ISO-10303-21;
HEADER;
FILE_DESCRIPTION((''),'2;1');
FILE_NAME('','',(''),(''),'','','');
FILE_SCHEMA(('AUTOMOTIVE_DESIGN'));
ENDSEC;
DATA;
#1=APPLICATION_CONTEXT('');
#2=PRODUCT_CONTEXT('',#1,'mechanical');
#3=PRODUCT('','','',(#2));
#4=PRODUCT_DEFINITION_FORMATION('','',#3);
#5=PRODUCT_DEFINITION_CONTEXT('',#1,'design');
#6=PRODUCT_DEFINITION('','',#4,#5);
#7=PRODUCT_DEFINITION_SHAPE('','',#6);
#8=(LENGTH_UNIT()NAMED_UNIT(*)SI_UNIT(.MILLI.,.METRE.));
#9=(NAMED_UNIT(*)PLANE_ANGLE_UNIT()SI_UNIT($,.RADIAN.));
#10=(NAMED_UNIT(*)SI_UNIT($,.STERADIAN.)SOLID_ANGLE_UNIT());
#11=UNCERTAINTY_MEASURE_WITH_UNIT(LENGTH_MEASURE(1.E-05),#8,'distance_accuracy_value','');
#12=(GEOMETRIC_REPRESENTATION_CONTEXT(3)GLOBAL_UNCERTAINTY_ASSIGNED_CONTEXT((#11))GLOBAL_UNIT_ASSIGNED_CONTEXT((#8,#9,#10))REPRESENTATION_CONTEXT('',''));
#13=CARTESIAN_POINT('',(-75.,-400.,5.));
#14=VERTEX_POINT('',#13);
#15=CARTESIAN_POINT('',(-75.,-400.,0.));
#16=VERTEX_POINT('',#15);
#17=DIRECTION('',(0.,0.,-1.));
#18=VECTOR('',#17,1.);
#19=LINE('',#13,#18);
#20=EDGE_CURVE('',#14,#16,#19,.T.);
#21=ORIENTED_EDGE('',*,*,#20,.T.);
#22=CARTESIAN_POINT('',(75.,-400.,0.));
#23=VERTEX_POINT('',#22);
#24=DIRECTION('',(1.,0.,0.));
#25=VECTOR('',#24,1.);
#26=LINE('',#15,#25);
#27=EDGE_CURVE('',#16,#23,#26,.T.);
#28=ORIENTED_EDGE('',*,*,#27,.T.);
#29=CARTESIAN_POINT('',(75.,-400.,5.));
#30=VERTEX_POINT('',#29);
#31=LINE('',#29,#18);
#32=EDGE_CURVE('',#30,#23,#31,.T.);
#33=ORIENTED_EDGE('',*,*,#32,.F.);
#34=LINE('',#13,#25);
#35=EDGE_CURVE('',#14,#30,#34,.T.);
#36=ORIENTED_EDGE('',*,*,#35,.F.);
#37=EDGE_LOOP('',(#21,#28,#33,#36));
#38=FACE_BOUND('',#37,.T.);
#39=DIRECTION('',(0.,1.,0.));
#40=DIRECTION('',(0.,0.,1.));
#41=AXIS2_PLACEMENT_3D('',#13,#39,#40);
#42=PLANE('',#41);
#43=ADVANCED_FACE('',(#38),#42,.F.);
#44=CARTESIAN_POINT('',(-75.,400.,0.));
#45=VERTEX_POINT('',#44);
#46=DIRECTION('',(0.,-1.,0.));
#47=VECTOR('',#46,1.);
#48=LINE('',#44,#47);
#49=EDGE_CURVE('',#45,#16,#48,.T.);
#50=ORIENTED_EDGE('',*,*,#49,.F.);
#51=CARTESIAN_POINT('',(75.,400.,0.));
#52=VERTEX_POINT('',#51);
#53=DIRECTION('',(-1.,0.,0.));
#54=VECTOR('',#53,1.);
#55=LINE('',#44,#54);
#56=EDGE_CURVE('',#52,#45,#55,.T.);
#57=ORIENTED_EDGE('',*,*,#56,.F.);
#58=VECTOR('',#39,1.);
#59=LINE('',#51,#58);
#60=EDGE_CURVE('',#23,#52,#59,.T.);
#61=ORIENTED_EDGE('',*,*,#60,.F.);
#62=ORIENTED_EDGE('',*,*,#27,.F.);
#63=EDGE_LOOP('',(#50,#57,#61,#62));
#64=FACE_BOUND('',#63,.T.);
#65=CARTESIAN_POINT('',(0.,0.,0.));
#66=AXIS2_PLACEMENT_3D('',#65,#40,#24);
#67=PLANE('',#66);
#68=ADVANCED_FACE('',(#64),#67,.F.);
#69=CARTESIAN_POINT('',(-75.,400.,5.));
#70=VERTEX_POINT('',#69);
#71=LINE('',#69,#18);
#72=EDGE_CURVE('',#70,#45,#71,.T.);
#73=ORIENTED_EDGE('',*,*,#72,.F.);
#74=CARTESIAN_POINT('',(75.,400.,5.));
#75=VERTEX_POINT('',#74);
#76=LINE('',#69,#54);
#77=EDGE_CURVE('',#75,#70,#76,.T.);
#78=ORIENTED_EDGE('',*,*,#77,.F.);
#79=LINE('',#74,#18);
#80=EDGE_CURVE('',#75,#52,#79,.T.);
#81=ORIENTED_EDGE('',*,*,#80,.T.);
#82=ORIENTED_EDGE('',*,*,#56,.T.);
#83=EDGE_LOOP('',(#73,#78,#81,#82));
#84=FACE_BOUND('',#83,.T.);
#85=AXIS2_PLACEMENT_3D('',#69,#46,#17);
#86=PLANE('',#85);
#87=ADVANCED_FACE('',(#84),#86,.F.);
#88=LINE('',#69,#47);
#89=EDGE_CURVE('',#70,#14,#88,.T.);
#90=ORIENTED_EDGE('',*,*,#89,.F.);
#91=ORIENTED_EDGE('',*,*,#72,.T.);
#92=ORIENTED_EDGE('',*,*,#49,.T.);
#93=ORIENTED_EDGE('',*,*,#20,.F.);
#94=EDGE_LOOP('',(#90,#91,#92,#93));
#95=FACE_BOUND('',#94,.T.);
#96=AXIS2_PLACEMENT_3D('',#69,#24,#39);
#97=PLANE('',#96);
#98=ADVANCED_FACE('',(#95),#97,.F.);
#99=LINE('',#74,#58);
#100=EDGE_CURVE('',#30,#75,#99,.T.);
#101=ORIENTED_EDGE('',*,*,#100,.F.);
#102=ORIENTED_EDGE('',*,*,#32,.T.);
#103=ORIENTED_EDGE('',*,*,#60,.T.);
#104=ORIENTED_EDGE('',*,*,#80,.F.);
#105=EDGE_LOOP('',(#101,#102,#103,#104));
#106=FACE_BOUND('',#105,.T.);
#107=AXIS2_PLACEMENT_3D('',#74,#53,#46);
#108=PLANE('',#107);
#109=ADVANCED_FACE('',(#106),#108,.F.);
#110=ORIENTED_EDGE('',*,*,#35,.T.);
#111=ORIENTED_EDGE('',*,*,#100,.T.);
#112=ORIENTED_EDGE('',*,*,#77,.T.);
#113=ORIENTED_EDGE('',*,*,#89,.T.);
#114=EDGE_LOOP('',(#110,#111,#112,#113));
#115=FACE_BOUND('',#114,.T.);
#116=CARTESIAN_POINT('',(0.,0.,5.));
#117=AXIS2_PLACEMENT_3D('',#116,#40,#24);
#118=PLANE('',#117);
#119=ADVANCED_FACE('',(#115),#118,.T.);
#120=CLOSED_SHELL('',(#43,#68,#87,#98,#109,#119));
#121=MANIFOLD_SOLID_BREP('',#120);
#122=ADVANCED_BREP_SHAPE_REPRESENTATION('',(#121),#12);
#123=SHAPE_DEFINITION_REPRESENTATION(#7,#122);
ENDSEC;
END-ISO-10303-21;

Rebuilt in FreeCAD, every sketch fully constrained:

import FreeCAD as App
import Part
import Sketcher
from FreeCAD import Vector

doc = App.newDocument("Part")
body = doc.addObject("PartDesign::Body", "Body")

# Sketch on XY plane
sketch1 = body.newObject("Sketcher::SketchObject", "Sketch")
sketch1.AttachmentSupport = (doc.getObject("XY_Plane"), [""])
sketch1.MapMode = "FlatFace"
sketch1.addGeometry(Part.LineSegment(Vector(-75, 400, 0), Vector(-75, -400, 0)), False)
sketch1.addGeometry(Part.LineSegment(Vector(-75, -400, 0), Vector(75, -400, 0)), False)
sketch1.addGeometry(Part.LineSegment(Vector(75, -400, 0), Vector(75, 400, 0)), False)
sketch1.addGeometry(Part.LineSegment(Vector(75, 400, 0), Vector(-75, 400, 0)), False)
sketch1.addConstraint(Sketcher.Constraint("Coincident", 0, 2, 1, 1))
sketch1.addConstraint(Sketcher.Constraint("Coincident", 1, 2, 2, 1))
sketch1.addConstraint(Sketcher.Constraint("Coincident", 2, 2, 3, 1))
sketch1.addConstraint(Sketcher.Constraint("Coincident", 3, 2, 0, 1))
sketch1.addConstraint(Sketcher.Constraint("Vertical", 0))
sketch1.addConstraint(Sketcher.Constraint("Horizontal", 1))
sketch1.addConstraint(Sketcher.Constraint("Vertical", 2))
sketch1.addConstraint(Sketcher.Constraint("Horizontal", 3))
sketch1.addConstraint(Sketcher.Constraint("Symmetric", 0, 2, 2, 2, -1, 1))
sketch1.addConstraint(Sketcher.Constraint("DistanceX", 1, 1, 1, 2, 150.0))
sketch1.addConstraint(Sketcher.Constraint("DistanceY", 0, 2, 0, 1, 800.0))
pad1 = body.newObject("PartDesign::Pad", "Pad")
pad1.Profile = sketch1
pad1.Length = 5

doc.recompute()
